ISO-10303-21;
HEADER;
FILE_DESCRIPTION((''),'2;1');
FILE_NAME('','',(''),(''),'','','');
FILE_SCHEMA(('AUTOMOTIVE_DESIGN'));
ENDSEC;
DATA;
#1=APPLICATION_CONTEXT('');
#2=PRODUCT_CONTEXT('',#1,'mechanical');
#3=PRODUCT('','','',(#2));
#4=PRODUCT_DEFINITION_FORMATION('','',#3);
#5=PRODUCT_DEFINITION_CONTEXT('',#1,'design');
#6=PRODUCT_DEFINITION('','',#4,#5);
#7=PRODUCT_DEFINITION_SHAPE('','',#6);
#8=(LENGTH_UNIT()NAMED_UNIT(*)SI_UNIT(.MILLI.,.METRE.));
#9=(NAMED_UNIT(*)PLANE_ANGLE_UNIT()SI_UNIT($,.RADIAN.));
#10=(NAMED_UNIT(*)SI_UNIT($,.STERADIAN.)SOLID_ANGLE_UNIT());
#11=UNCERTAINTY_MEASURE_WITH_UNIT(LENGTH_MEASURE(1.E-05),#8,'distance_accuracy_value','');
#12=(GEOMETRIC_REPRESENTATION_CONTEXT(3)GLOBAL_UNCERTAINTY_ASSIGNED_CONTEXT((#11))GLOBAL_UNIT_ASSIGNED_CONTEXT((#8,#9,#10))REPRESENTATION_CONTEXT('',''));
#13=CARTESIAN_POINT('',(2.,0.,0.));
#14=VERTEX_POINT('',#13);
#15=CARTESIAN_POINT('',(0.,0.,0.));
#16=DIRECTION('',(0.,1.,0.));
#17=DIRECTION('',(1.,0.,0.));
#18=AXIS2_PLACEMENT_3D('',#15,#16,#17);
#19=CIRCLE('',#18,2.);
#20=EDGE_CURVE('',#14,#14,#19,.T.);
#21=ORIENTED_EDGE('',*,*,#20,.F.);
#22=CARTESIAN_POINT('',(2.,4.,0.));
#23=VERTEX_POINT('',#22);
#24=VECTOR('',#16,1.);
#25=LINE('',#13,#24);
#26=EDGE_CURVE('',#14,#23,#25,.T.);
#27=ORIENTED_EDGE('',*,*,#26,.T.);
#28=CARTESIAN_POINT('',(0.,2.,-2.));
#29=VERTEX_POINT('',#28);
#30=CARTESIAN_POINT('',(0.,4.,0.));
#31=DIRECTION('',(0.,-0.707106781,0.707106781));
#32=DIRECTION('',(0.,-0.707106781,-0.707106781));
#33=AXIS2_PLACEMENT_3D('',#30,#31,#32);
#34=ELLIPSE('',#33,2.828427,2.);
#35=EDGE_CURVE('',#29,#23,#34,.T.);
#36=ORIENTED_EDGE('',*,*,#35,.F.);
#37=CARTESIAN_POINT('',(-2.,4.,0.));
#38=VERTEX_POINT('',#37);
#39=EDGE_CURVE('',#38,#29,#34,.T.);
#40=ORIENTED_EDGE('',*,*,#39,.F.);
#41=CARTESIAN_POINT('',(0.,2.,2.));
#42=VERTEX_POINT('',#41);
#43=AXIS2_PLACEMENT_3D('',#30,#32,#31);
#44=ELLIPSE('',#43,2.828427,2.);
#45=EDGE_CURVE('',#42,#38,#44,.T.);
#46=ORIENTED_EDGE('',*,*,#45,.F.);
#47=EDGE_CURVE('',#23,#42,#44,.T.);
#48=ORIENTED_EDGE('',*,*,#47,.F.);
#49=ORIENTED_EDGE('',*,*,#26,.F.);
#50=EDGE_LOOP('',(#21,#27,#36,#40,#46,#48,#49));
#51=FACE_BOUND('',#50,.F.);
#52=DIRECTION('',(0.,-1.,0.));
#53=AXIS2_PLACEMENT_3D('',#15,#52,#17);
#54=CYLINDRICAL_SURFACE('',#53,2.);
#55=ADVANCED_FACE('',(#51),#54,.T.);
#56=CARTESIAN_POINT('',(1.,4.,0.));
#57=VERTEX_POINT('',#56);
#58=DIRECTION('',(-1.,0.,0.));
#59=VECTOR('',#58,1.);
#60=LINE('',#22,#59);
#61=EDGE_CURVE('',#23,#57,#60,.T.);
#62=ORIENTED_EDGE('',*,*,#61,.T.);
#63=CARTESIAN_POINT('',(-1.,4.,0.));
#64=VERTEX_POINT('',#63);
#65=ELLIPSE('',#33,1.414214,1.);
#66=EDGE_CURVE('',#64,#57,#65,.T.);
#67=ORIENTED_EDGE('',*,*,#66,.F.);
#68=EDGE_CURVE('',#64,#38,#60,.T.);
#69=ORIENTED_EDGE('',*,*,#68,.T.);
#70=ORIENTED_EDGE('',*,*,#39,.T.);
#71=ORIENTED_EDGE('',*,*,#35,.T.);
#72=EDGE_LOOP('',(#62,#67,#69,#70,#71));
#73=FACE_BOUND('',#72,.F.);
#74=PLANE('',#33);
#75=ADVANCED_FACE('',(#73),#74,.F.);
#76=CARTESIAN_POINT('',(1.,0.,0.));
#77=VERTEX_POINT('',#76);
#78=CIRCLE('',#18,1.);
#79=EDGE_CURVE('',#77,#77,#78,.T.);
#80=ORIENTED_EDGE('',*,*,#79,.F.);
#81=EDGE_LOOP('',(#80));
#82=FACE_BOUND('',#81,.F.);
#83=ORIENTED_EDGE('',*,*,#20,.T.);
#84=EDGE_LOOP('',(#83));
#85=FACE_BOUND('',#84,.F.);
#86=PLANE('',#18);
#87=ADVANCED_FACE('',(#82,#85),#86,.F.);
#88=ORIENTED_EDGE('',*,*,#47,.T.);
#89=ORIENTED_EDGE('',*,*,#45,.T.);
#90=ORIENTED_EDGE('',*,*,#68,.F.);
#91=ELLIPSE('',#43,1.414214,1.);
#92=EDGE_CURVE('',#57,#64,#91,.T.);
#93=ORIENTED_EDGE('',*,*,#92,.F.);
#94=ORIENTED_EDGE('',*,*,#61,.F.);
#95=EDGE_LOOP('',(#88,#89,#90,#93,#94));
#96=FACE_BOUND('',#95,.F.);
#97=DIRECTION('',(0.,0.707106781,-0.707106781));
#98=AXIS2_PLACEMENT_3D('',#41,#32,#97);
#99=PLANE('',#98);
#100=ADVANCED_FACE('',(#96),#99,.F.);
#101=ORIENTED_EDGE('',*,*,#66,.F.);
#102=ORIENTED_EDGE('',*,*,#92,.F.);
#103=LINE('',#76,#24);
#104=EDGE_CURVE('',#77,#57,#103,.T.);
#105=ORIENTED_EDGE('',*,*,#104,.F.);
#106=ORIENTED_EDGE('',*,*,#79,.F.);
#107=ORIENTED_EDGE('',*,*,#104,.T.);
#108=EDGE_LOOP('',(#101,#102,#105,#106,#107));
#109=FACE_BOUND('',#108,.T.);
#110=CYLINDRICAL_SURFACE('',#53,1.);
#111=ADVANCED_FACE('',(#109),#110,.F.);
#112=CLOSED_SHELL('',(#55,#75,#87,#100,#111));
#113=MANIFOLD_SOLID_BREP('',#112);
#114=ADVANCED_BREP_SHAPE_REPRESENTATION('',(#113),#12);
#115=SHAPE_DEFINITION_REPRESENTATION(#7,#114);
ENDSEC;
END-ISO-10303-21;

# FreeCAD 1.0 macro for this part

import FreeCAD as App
import Part
import Sketcher
Q = App.Units.Quantity


def add_polygon(sketch, points):
    """Adds a closed chain of lines whose ends are joined by coincident constraints."""
    first, n = sketch.GeometryCount, len(points)
    for a, b in zip(points, points[1:] + points[:1]):
        sketch.addGeometry(Part.LineSegment(App.Vector(*a, 0), App.Vector(*b, 0)), False)
    for i in range(n):
        sketch.addConstraint(Sketcher.Constraint("Coincident", first + i, 2, first + (i + 1) % n, 1))

doc = App.newDocument("Part")
body = doc.addObject("PartDesign::Body", "Body")

# Sketch on XZ plane
sketch1 = doc.addObject("Sketcher::SketchObject", "Sketch")
body.addObject(sketch1)
sketch1.AttachmentSupport = (doc.XZ_Plane, [""])
sketch1.MapMode = "FlatFace"
sketch1.addGeometry([
    Part.Circle(App.Vector(0, 0, 0), App.Vector(0, 0, 1), 2),
    Part.Circle(App.Vector(0, 0, 0), App.Vector(0, 0, 1), 1),
], False)
sketch1.addConstraint([
    Sketcher.Constraint("Coincident", 0, 3, -1, 1),
    Sketcher.Constraint("Coincident", 1, 3, -1, 1),
    Sketcher.Constraint("Diameter", 0, Q("4 mm")),
    Sketcher.Constraint("Diameter", 1, Q("2 mm")),
])
pad1 = doc.addObject("PartDesign::Pad", "Pad")
body.addObject(pad1)
pad1.Profile = sketch1
pad1.Length = 4
pad1.Reversed = True

# Sketch on YZ plane
sketch2 = doc.addObject("Sketcher::SketchObject", "Sketch001")
body.addObject(sketch2)
sketch2.AttachmentSupport = (doc.YZ_Plane, [""])
sketch2.MapMode = "FlatFace"
add_polygon(sketch2, [(4, -2), (4, 0), (2, -2)])  # lines 0-2
add_polygon(sketch2, [(4, 2), (2, 2), (4, 0)])  # lines 3-5
sketch2.addConstraint([
    Sketcher.Constraint("Vertical", 0),
    Sketcher.Constraint("Horizontal", 2),
    Sketcher.Constraint("Horizontal", 3),
    Sketcher.Constraint("Vertical", 5),
    Sketcher.Constraint("Coincident", 4, 2, 0, 2),
    Sketcher.Constraint("Symmetric", 1, 2, 3, 2, -1),
    Sketcher.Constraint("PointOnObject", 0, 2, -1),
    Sketcher.Constraint("Perpendicular", 1, 4),
    Sketcher.Constraint("DistanceX", 2, 1, 2, 2, Q("2 mm")),
    Sketcher.Constraint("DistanceX", -1, 1, 0, 2, Q("4 mm")),
])
pocket1 = doc.addObject("PartDesign::Pocket", "Pocket")
body.addObject(pocket1)
pocket1.Profile = sketch2
pocket1.Length = 4
pocket1.Midplane = True

doc.recompute()
